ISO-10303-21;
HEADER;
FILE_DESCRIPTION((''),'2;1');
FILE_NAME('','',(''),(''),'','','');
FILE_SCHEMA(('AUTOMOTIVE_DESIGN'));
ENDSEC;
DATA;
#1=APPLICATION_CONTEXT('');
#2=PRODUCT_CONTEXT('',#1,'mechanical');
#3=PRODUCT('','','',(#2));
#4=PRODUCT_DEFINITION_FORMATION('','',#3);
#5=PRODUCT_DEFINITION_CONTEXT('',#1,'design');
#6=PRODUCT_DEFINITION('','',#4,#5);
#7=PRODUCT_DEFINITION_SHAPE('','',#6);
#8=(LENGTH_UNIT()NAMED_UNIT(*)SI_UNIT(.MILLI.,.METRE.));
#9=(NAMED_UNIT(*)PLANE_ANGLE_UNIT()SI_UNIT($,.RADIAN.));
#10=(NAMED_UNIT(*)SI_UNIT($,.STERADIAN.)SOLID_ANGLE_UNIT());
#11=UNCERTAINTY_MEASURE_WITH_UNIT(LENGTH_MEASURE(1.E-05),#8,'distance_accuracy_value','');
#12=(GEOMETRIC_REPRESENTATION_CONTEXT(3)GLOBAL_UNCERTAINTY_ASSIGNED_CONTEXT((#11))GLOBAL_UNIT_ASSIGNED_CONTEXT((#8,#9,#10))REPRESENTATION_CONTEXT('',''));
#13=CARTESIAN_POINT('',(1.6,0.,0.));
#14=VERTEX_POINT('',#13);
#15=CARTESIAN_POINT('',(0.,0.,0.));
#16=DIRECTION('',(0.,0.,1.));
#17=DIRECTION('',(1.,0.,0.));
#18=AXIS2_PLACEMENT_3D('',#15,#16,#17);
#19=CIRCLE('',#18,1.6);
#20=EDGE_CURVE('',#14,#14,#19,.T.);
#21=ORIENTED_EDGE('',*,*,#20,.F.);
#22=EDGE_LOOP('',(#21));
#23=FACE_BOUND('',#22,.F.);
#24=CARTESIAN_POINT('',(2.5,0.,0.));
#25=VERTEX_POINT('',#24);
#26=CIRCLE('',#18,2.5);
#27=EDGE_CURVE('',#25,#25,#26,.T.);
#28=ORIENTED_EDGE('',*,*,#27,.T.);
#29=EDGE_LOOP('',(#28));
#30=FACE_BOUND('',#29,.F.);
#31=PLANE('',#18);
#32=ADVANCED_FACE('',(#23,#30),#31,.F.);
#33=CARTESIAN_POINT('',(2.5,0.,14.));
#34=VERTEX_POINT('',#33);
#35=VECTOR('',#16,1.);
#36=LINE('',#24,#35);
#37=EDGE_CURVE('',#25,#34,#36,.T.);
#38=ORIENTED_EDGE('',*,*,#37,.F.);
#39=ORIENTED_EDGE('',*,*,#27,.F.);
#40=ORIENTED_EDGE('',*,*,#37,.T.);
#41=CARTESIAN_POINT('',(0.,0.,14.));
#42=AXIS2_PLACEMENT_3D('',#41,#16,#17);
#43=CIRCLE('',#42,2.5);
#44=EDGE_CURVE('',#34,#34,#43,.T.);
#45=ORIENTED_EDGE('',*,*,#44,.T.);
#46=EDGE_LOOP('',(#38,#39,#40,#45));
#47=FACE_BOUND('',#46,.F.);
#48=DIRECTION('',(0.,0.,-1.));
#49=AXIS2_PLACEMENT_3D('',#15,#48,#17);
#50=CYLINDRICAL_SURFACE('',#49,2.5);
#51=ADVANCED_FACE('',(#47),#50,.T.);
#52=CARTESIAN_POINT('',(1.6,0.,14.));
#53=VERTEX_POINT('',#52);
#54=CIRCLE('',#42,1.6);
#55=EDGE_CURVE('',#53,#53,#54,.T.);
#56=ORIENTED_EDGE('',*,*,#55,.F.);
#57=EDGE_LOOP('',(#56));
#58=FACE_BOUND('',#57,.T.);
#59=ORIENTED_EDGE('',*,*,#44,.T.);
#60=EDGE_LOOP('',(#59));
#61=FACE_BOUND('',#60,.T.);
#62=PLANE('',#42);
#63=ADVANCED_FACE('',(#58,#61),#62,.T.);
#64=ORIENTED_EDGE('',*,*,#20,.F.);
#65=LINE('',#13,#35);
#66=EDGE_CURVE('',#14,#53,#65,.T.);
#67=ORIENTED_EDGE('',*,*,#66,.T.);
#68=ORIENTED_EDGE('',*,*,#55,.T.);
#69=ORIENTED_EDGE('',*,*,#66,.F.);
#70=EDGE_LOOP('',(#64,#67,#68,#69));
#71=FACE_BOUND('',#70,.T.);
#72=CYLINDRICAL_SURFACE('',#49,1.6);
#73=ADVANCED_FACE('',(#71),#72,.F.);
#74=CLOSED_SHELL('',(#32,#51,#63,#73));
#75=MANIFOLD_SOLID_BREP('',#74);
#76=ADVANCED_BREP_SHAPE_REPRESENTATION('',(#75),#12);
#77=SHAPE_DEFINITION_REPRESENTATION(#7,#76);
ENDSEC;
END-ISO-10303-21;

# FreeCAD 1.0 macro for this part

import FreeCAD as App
import Part
import Sketcher

V = App.Vector
Q = App.Units.Quantity

doc = App.newDocument("Part")
body = doc.addObject("PartDesign::Body", "Body")

# Sketch on XY plane
sketch1 = body.newObject("Sketcher::SketchObject", "Sketch")
sketch1.AttachmentSupport = (doc.getObject("XY_Plane"), [""])
sketch1.MapMode = "FlatFace"
sketch1.addGeometry([
    Part.Circle(V(0, 0, 0), V(0, 0, 1), 2.5),
    Part.Circle(V(0, 0, 0), V(0, 0, 1), 1.6),
], False)
sketch1.addConstraint([
    Sketcher.Constraint("Coincident", 0, 3, -1, 1),
    Sketcher.Constraint("Coincident", 1, 3, -1, 1),
    Sketcher.Constraint("Diameter", 0, Q("5 mm")),
    Sketcher.Constraint("Diameter", 1, Q("3.2 mm")),
])
pad1 = body.newObject("PartDesign::Pad", "Pad")
pad1.Profile = sketch1
pad1.Length = 14

doc.recompute()
